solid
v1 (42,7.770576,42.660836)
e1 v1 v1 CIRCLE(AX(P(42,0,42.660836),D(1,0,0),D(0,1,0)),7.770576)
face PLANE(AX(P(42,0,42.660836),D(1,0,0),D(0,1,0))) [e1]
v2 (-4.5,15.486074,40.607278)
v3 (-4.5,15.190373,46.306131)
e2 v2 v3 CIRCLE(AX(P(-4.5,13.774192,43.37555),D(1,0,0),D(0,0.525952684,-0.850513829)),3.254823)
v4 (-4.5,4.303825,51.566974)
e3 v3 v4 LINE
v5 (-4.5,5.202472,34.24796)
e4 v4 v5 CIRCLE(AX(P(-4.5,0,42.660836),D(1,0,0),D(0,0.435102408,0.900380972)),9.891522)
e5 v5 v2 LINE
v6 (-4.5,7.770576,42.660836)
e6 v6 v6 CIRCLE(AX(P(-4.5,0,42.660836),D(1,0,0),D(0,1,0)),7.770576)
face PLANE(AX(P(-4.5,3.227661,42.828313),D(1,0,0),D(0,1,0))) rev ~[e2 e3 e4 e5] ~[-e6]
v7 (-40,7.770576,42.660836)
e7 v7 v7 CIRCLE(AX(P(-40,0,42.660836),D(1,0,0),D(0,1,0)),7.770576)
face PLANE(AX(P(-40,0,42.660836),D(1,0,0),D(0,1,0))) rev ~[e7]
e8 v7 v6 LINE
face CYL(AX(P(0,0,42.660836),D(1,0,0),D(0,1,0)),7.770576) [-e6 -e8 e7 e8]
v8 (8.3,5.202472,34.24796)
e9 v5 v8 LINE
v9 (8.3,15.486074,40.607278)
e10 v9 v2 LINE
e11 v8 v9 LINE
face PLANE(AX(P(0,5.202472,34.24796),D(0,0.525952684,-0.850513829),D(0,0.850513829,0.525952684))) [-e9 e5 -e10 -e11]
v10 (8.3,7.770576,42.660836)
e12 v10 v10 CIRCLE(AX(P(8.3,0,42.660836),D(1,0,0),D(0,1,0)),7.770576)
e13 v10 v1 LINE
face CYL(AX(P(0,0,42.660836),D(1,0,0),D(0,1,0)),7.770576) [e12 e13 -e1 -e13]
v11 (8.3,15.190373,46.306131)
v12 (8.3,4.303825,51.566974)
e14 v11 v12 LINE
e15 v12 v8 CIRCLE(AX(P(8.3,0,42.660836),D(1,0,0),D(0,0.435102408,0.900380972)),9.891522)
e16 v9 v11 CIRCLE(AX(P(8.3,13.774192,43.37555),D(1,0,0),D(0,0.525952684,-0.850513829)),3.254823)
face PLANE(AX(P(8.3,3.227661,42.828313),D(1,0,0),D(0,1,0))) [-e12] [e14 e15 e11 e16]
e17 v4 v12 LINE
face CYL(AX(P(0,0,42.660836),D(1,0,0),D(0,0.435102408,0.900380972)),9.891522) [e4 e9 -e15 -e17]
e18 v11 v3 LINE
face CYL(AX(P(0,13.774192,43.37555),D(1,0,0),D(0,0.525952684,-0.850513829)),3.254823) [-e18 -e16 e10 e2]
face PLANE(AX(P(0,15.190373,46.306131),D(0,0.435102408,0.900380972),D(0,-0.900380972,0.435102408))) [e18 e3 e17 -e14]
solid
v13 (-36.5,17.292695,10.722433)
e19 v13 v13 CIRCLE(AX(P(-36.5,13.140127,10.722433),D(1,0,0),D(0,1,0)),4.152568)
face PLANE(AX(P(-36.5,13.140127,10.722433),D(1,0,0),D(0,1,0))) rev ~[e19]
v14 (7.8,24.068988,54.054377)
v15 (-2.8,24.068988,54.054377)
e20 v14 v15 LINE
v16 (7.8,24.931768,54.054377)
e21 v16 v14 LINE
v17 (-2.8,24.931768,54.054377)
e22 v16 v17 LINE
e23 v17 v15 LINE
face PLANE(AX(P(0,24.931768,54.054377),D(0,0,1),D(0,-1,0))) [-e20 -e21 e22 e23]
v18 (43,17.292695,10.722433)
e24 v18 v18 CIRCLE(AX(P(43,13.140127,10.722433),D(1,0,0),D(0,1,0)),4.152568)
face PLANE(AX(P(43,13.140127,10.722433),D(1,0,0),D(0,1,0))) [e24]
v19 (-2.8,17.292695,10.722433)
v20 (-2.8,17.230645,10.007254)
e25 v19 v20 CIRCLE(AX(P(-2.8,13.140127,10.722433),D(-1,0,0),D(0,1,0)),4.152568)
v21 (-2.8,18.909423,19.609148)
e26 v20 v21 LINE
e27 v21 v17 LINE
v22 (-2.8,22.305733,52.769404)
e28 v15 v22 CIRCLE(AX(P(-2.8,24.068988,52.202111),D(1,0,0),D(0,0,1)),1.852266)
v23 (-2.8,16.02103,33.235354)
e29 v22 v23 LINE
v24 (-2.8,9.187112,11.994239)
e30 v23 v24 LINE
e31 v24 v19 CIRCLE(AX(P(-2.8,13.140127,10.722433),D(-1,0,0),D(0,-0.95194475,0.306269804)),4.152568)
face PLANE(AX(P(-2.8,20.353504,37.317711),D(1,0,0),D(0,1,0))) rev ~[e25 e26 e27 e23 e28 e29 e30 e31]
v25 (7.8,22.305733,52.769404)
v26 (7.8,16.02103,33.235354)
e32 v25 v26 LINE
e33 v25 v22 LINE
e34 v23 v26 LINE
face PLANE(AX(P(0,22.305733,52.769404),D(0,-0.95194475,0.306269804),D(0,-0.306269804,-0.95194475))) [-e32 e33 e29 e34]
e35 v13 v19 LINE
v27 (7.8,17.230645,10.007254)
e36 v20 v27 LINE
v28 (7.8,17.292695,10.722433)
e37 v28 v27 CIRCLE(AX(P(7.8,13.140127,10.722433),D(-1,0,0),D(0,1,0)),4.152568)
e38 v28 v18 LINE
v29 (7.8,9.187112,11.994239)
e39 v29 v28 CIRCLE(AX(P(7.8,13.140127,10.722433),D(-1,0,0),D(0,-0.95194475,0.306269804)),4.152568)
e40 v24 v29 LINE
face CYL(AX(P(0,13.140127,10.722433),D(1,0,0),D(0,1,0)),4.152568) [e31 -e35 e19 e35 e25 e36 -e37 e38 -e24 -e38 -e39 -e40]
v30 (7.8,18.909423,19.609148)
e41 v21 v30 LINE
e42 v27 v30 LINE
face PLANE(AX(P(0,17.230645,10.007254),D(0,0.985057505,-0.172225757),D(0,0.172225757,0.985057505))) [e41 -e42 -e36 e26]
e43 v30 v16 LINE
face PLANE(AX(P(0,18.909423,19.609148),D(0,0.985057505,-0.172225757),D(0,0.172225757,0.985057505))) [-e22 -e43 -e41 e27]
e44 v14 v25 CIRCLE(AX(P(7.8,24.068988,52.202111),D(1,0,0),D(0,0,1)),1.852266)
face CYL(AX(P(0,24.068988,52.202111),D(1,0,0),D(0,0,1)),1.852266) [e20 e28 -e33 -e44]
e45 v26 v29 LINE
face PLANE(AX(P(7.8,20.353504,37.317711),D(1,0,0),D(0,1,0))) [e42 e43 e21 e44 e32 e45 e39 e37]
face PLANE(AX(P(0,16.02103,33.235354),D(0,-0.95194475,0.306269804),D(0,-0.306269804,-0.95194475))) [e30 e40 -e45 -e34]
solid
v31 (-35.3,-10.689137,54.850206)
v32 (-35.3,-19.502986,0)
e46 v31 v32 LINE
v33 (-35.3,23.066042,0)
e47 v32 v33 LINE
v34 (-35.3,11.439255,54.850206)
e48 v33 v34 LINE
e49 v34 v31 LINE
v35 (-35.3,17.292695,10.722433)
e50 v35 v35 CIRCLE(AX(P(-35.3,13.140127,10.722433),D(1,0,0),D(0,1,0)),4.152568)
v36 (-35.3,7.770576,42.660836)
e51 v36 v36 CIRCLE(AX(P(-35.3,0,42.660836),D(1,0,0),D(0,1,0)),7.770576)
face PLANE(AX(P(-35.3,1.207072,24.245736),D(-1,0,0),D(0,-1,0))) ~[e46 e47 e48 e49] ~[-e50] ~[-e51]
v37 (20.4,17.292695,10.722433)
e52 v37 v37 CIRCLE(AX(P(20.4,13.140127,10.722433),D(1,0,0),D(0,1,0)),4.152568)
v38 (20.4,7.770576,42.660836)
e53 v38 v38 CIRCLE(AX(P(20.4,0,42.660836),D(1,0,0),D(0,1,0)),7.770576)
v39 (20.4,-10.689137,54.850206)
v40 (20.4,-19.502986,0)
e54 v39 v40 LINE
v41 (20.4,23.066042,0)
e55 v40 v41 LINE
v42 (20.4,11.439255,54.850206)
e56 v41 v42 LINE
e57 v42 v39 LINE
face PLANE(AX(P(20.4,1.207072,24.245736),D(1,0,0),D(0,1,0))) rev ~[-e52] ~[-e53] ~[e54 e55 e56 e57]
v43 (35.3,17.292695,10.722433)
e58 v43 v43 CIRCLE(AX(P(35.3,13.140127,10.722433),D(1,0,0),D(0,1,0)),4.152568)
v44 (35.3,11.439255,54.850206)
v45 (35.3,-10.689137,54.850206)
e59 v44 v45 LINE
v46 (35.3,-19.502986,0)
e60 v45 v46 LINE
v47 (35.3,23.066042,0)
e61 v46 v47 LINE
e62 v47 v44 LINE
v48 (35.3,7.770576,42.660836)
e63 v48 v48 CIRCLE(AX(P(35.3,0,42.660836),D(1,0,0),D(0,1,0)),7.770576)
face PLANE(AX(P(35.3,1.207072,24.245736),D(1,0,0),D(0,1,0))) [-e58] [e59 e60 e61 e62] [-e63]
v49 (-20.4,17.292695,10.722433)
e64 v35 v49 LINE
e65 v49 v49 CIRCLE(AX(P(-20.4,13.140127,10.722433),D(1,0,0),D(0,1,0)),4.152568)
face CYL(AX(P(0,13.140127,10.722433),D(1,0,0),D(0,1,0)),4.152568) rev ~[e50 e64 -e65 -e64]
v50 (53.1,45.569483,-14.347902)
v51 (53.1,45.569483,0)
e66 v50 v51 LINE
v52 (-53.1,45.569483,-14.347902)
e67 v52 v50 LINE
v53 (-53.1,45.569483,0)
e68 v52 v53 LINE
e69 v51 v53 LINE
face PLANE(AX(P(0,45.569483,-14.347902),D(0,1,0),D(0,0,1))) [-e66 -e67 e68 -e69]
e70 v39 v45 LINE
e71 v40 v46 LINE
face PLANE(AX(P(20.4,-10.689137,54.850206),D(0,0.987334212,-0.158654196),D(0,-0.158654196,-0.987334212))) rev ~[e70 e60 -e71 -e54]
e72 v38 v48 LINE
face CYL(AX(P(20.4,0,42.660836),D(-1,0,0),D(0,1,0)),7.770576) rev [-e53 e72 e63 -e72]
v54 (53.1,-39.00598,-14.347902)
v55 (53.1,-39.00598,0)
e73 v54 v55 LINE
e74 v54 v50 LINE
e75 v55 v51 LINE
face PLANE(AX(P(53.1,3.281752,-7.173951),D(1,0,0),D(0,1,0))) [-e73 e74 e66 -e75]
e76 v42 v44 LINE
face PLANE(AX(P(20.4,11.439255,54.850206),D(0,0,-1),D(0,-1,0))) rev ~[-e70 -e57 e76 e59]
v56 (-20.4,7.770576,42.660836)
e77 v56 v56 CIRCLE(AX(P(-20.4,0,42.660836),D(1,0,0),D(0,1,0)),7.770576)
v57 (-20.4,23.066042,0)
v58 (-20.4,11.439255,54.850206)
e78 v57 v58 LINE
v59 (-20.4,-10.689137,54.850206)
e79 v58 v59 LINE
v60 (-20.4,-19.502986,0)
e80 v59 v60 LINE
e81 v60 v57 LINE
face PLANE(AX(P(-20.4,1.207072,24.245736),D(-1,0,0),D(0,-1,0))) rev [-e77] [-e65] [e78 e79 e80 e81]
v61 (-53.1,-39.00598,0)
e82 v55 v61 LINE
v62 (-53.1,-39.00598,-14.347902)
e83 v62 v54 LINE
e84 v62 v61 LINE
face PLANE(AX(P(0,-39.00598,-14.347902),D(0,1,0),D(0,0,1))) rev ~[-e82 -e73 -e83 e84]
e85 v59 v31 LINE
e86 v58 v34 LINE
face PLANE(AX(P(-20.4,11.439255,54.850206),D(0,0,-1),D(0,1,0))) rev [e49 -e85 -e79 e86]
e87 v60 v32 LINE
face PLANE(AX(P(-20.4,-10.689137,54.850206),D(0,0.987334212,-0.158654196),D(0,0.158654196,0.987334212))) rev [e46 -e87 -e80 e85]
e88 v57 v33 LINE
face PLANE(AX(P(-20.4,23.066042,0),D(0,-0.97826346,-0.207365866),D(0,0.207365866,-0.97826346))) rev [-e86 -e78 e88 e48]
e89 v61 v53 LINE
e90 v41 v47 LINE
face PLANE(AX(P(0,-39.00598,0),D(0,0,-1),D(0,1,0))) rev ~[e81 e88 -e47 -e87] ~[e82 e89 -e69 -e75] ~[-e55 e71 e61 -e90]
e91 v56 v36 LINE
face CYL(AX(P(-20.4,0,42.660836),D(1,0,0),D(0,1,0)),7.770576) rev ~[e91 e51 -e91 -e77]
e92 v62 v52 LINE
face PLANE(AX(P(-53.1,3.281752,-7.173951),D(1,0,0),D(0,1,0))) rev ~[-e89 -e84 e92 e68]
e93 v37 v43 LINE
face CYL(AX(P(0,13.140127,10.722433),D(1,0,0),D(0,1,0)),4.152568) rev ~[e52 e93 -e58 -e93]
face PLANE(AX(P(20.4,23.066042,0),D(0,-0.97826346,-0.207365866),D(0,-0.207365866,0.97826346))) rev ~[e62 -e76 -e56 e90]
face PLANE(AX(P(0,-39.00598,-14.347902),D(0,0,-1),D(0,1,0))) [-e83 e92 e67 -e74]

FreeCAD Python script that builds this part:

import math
import FreeCAD as App
import Part
import Sketcher

V = App.Vector
Q = App.Units.Quantity


def add_polygon(sketch, points):
    """Adds a closed chain of lines whose ends are joined by coincident constraints."""
    first, n = sketch.GeometryCount, len(points)
    for a, b in zip(points, points[1:] + points[:1]):
        sketch.addGeometry(Part.LineSegment(App.Vector(*a, 0), App.Vector(*b, 0)), False)
    for i in range(n):
        sketch.addConstraint(Sketcher.Constraint("Coincident", first + i, 2, first + (i + 1) % n, 1))

doc = App.newDocument("Part")
body = doc.addObject("PartDesign::Body", "Body")

sketch1 = doc.addObject("Sketcher::SketchObject", "Sketch")
body.addObject(sketch1)
sketch1.AttachmentSupport = (doc.YZ_Plane, [""])
sketch1.MapMode = "FlatFace"
add_polygon(sketch1, [(-39, 0), (-39, -14), (46, -14), (46, 0)])
sketch1.addConstraint(Sketcher.Constraint("Vertical", 0))
sketch1.addConstraint(Sketcher.Constraint("Horizontal", 1))
sketch1.addConstraint(Sketcher.Constraint("Vertical", 2))
sketch1.addConstraint(Sketcher.Constraint("Horizontal", 3))
sketch1.addConstraint(Sketcher.Constraint("PointOnObject", 2, 2, -1))
sketch1.addConstraint(Sketcher.Constraint("DistanceX", 1, 1, 1, 2, Q("84.575463 mm")))
sketch1.addConstraint(Sketcher.Constraint("DistanceY", 0, 2, 0, 1, Q("14.347902 mm")))
sketch1.addConstraint(Sketcher.Constraint("DistanceX", 0, 2, -1, 1, Q("39.00598 mm")))
pad1 = doc.addObject("PartDesign::Pad", "Pad")
body.addObject(pad1)
pad1.Profile = sketch1
pad1.Length = 106.2
pad1.Midplane = True

sketch2 = doc.addObject("Sketcher::SketchObject", "Sketch001")
body.addObject(sketch2)
sketch2.AttachmentSupport = (doc.YZ_Plane, [""])
sketch2.MapMode = "FlatFace"
sketch2.AttachmentOffset = App.Placement(V(0, 0, 20.4), App.Rotation())
add_polygon(sketch2, [(-11, 55), (-20, 0), (23, 0), (11, 55)])
sketch2.addGeometry(Part.Circle(V(0, 43, 0), V(0, 0, 1), 8), False)
sketch2.addConstraint(Sketcher.Constraint("Horizontal", 1))
sketch2.addConstraint(Sketcher.Constraint("Horizontal", 3))
sketch2.addConstraint(Sketcher.Constraint("PointOnObject", 4, 3, -2))
sketch2.addConstraint(Sketcher.Constraint("PointOnObject", 0, 2, -1))
sketch2.addConstraint(Sketcher.Constraint("Diameter", 4, Q("15.541151 mm")))
sketch2.addConstraint(Sketcher.Constraint("DistanceX", 1, 1, 1, 2, Q("42.569028 mm")))
sketch2.addConstraint(Sketcher.Constraint("Distance", 0, Q("55.553839 mm")))
sketch2.addConstraint(Sketcher.Constraint("Distance", 2, Q("56.068951 mm")))
sketch2.addConstraint(Sketcher.Constraint("DistanceX", 3, 2, 3, 1, Q("22.128392 mm")))
sketch2.addConstraint(Sketcher.Constraint("DistanceX", -1, 1, 1, 2, Q("23.066042 mm")))
sketch2.addConstraint(Sketcher.Constraint("DistanceY", 4, 3, 2, 2, Q("12.18937 mm")))
pad2 = doc.addObject("PartDesign::Pad", "Pad001")
body.addObject(pad2)
pad2.Profile = sketch2
pad2.Length = 14.9
body2 = doc.addObject("PartDesign::Body", "Body001")
doc.recompute()

body2.BaseFeature = body
doc.recompute()

mirroring = doc.addObject("Part::Mirroring", "Mirroring")
mirroring.Source = body
mirroring.Base = V(0, 0, 0)
mirroring.Normal = V(1, 0, 0)
body3 = doc.addObject("PartDesign::Body", "Body002")
body3.BaseFeature = mirroring
boolean = doc.addObject("PartDesign::Boolean", "Boolean")
body2.addObject(boolean)
boolean.Type = "Fuse"
boolean.addObjects([body3])
doc.recompute()
body4 = doc.addObject("PartDesign::Body", "Body003")

sketch3 = doc.addObject("Sketcher::SketchObject", "Sketch002")
body4.addObject(sketch3)
sketch3.AttachmentSupport = (doc.getObject("YZ_Plane003"), [""])
sketch3.MapMode = "FlatFace"
sketch3.addGeometry(Part.Circle(V(0, 43, 0), V(0, 0, 1), 8), False)
sketch3.addConstraint(Sketcher.Constraint("PointOnObject", 0, 3, -2))
sketch3.addConstraint(Sketcher.Constraint("Diameter", 0, Q("15.541151 mm")))
sketch3.addConstraint(Sketcher.Constraint("DistanceY", -1, 1, 0, 3, Q("42.660836 mm")))
pad3 = doc.addObject("PartDesign::Pad", "Pad002")
body4.addObject(pad3)
pad3.Profile = sketch3
pad3.Type = "TwoLengths"
pad3.Length = 42
pad3.Length2 = 40

sketch4 = doc.addObject("Sketcher::SketchObject", "Sketch003")
body4.addObject(sketch4)
sketch4.AttachmentSupport = (doc.getObject("YZ_Plane003"), [""])
sketch4.MapMode = "FlatFace"
sketch4.addGeometry(Part.LineSegment(V(15.2, 46.3, 0), V(4.3, 51.6, 0)), False)
sketch4.addGeometry(Part.ArcOfCircle(Part.Circle(V(0, 42.7, 0), V(0, 0, 1), 9.9), math.radians(64), math.radians(302)), False)
sketch4.addGeometry(Part.LineSegment(V(5.2, 34.2, 0), V(15.5, 40.6, 0)), False)
sketch4.addGeometry(Part.ArcOfCircle(Part.Circle(V(13.8, 43.4, 0), V(0, 0, 1), 3.3), math.radians(-58), math.radians(64)), False)
sketch4.addGeometry(Part.Circle(V(0, 42.7, 0), V(0, 0, 1), 7.8), False)
sketch4.addConstraint(Sketcher.Constraint("Tangent", 0, 2, 1, 1))
sketch4.addConstraint(Sketcher.Constraint("Tangent", 1, 2, 2, 1))
sketch4.addConstraint(Sketcher.Constraint("Tangent", 2, 2, 3, 1))
sketch4.addConstraint(Sketcher.Constraint("Tangent", 3, 2, 0, 1))
sketch4.addConstraint(Sketcher.Constraint("Coincident", 4, 3, 1, 3))
sketch4.addConstraint(Sketcher.Constraint("PointOnObject", 1, 3, -2))
sketch4.addConstraint(Sketcher.Constraint("Diameter", 4, Q("15.541151 mm")))
sketch4.addConstraint(Sketcher.Constraint("Radius", 1, Q("9.891522 mm")))
sketch4.addConstraint(Sketcher.Constraint("Radius", 3, Q("3.254823 mm")))
sketch4.addConstraint(Sketcher.Constraint("DistanceX", 1, 2, 2, 2, Q("10.283602 mm")))
sketch4.addConstraint(Sketcher.Constraint("DistanceX", 3, 2, 2, 2, Q("0.295702 mm")))
sketch4.addConstraint(Sketcher.Constraint("DistanceY", -1, 1, 3, 3, Q("43.37555 mm")))
pad4 = doc.addObject("PartDesign::Pad", "Pad003")
body4.addObject(pad4)
pad4.Profile = sketch4
pad4.Type = "TwoLengths"
pad4.Length = 8.3
pad4.Length2 = 4.5
body5 = doc.addObject("PartDesign::Body", "Body004")

sketch5 = doc.addObject("Sketcher::SketchObject", "Sketch004")
body5.addObject(sketch5)
sketch5.AttachmentSupport = (doc.getObject("YZ_Plane004"), [""])
sketch5.MapMode = "FlatFace"
sketch5.addGeometry(Part.Circle(V(13.1, 10.7, 0), V(0, 0, 1), 4.2), False)
sketch5.addConstraint(Sketcher.Constraint("Diameter", 0, Q("8.305135 mm")))
sketch5.addConstraint(Sketcher.Constraint("DistanceX", -1, 1, 0, 3, Q("13.140127 mm")))
sketch5.addConstraint(Sketcher.Constraint("DistanceY", -1, 1, 0, 3, Q("10.722433 mm")))
pad5 = doc.addObject("PartDesign::Pad", "Pad004")
body5.addObject(pad5)
pad5.Profile = sketch5
pad5.Type = "TwoLengths"
pad5.Length = 43
pad5.Length2 = 36.5
doc.recompute()

body6 = doc.addObject("PartDesign::Body", "Body005")
body6.BaseFeature = body5
boolean2 = doc.addObject("PartDesign::Boolean", "Boolean001")
body2.addObject(boolean2)
boolean2.Type = "Cut"
boolean2.addObjects([body6])
doc.recompute()

sketch6 = doc.addObject("Sketcher::SketchObject", "Sketch005")
body5.addObject(sketch6)
sketch6.AttachmentSupport = (doc.getObject("YZ_Plane004"), [""])
sketch6.MapMode = "FlatFace"
sketch6.addGeometry(Part.LineSegment(V(22.3, 52.8, 0), V(16, 33.2, 0)), False)
sketch6.addGeometry(Part.LineSegment(V(16, 33.2, 0), V(9.2, 12, 0)), False)
sketch6.addGeometry(Part.ArcOfCircle(Part.Circle(V(13.1, 10.7, 0), V(0, 0, 1), 4.2), math.radians(0), math.radians(162)), False)
sketch6.addGeometry(Part.ArcOfCircle(Part.Circle(V(13.1, 10.7, 0), V(0, 0, 1), 4.2), math.radians(-9.92), math.radians(0)), False)
sketch6.addGeometry(Part.LineSegment(V(17.2, 10, 0), V(18.9, 19.6, 0)), False)
sketch6.addGeometry(Part.LineSegment(V(18.9, 19.6, 0), V(24.9, 54.1, 0)), False)
sketch6.addGeometry(Part.LineSegment(V(24.9, 54.1, 0), V(24.1, 54.1, 0)), False)
sketch6.addGeometry(Part.ArcOfCircle(Part.Circle(V(24.1, 52.2, 0), V(0, 0, 1), 1.9), math.radians(90), math.radians(162)), False)
sketch6.addConstraint(Sketcher.Constraint("Coincident", 0, 2, 1, 1))
sketch6.addConstraint(Sketcher.Constraint("Tangent", 1, 2, 2, 2))
sketch6.addConstraint(Sketcher.Constraint("Tangent", 2, 1, 3, 2))
sketch6.addConstraint(Sketcher.Constraint("Tangent", 3, 1, 4, 1))
sketch6.addConstraint(Sketcher.Constraint("Coincident", 4, 2, 5, 1))
sketch6.addConstraint(Sketcher.Constraint("Coincident", 5, 2, 6, 1))
sketch6.addConstraint(Sketcher.Constraint("Tangent", 6, 2, 7, 1))
sketch6.addConstraint(Sketcher.Constraint("Tangent", 7, 2, 0, 1))
sketch6.addConstraint(Sketcher.Constraint("Horizontal", 6))
sketch6.addConstraint(Sketcher.Constraint("Equal", 2, 3))
sketch6.addConstraint(Sketcher.Constraint("Parallel", 0, 1))
sketch6.addConstraint(Sketcher.Constraint("Parallel", 4, 5))
sketch6.addConstraint(Sketcher.Constraint("Horizontal", 3, 3, 2, 1))
sketch6.addConstraint(Sketcher.Constraint("Radius", 2, Q("4.152568 mm")))
sketch6.addConstraint(Sketcher.Constraint("Radius", 7, Q("1.852266 mm")))
sketch6.addConstraint(Sketcher.Constraint("DistanceX", 6, 2, 6, 1, Q("0.86278 mm")))
sketch6.addConstraint(Sketcher.Constraint("DistanceY", 3, 1, 0, 2, Q("23.2281 mm")))
sketch6.addConstraint(Sketcher.Constraint("Distance", 0, Q("20.520151 mm")))
sketch6.addConstraint(Sketcher.Constraint("Distance", 1, Q("22.31339 mm")))
sketch6.addConstraint(Sketcher.Constraint("DistanceY", -1, 1, 7, 3, Q("52.202111 mm")))
sketch6.addConstraint(Sketcher.Constraint("DistanceX", -1, 1, 0, 2, Q("16.02103 mm")))
sketch6.addConstraint(Sketcher.Constraint("DistanceY", -1, 1, 4, 2, Q("19.609148 mm")))
pad6 = doc.addObject("PartDesign::Pad", "Pad005")
body5.addObject(pad6)
pad6.Profile = sketch6
pad6.Type = "TwoLengths"
pad6.Length = 7.8
pad6.Length2 = 2.8

doc.recompute()
